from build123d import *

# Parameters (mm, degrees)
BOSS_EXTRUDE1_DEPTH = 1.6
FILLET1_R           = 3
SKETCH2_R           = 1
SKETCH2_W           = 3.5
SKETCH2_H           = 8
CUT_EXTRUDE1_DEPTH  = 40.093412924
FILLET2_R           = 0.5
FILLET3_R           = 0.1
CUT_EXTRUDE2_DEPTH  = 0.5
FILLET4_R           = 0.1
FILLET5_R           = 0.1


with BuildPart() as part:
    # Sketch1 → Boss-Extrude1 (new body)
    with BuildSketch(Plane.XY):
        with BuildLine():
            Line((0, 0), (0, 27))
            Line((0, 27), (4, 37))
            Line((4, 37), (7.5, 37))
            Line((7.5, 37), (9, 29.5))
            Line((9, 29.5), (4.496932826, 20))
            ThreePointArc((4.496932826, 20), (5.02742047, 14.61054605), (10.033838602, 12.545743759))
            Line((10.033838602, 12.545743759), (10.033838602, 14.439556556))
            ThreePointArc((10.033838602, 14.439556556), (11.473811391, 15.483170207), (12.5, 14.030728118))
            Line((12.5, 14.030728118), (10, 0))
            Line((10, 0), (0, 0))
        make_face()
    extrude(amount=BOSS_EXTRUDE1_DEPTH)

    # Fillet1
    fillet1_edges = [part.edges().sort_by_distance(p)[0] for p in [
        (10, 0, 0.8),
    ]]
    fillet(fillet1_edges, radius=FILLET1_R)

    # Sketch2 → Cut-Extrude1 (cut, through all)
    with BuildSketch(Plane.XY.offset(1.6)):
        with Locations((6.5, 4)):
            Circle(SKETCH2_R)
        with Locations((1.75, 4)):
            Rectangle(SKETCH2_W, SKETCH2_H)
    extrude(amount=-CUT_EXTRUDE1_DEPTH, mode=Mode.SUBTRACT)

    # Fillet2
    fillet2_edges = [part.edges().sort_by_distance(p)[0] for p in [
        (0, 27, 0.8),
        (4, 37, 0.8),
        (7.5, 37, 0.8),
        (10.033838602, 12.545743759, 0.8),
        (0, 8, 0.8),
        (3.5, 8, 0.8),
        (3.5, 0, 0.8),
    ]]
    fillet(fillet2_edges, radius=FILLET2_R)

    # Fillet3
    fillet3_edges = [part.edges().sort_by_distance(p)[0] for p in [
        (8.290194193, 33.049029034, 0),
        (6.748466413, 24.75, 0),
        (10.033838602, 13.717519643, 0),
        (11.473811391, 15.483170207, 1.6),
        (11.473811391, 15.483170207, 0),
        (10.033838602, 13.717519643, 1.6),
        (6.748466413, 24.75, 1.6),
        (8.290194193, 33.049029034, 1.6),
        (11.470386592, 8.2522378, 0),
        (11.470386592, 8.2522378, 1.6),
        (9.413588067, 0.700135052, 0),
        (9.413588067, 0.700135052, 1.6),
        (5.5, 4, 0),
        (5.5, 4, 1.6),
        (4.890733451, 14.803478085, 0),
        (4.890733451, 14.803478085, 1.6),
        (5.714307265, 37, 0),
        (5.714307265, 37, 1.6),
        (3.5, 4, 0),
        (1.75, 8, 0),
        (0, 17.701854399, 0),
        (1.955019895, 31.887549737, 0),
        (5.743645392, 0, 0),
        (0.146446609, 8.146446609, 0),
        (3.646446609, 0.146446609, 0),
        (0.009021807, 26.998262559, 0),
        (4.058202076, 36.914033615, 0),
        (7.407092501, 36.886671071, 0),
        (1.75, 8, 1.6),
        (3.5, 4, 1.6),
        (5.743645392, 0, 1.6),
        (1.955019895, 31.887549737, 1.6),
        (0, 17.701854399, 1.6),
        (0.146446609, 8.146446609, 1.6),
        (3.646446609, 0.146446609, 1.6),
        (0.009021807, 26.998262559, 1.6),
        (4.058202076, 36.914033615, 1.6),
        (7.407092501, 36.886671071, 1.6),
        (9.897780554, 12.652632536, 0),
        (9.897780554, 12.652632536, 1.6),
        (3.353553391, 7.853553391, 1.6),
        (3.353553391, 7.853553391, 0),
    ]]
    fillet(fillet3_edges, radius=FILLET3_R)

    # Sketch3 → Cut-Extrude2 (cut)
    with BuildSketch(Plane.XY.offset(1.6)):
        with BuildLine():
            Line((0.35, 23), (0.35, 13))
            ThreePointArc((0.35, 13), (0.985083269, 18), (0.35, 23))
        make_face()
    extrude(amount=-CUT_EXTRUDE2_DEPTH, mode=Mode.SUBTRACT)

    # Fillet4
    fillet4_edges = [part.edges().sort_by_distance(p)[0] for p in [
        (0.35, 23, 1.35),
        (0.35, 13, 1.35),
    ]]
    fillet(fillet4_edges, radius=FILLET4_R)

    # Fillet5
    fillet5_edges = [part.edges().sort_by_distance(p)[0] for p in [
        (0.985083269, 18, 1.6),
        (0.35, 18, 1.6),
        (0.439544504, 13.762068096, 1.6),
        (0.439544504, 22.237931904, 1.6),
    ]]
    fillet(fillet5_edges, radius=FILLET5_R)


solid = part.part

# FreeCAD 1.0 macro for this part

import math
import FreeCAD as App
import Part
import Sketcher
Q = App.Units.Quantity


def edges_at(feature, points):
    """Names of the edges that pass closest to the given points."""
    edges = feature.Shape.Edges
    near = lambda p: min(range(len(edges)), key=lambda i: edges[i].distToShape(Part.Vertex(*p))[0])
    return sorted({f"Edge{near(p) + 1}" for p in points})


def add_polygon(sketch, points):
    """Adds a closed chain of lines whose ends are joined by coincident constraints."""
    first, n = sketch.GeometryCount, len(points)
    for a, b in zip(points, points[1:] + points[:1]):
        sketch.addGeometry(Part.LineSegment(App.Vector(*a, 0), App.Vector(*b, 0)), False)
    for i in range(n):
        sketch.addConstraint(Sketcher.Constraint("Coincident", first + i, 2, first + (i + 1) % n, 1))

doc = App.newDocument("Part")
body = doc.addObject("PartDesign::Body", "Body")

# Sketch on XY plane
sketch1 = body.newObject("Sketcher::SketchObject", "Sketch")
sketch1.AttachmentSupport = (doc.getObject("XY_Plane"), [""])
sketch1.MapMode = "FlatFace"
sketch1.addGeometry(Part.LineSegment(App.Vector(0, 27, 0), App.Vector(0, 0, 0)), False)
sketch1.addGeometry(Part.LineSegment(App.Vector(0, 0, 0), App.Vector(10, 0, 0)), False)
sketch1.addGeometry(Part.LineSegment(App.Vector(10, 0, 0), App.Vector(12.5, 14.030728, 0)), False)
sketch1.addGeometry(Part.ArcOfCircle(Part.Circle(App.Vector(11.269382, 14.25, 0), App.Vector(0, 0, 1), 1.25), math.radians(-10.102955), math.radians(171.277717)), False)
sketch1.addGeometry(Part.LineSegment(App.Vector(10.033839, 14.439557, 0), App.Vector(10.033839, 12.545744, 0)), False)
sketch1.addGeometry(Part.ArcOfCircle(Part.Circle(App.Vector(9.25, 17.747013, 0), App.Vector(0, 0, 1), 5.26), math.radians(154.638717), math.radians(278.570066)), False)
sketch1.addGeometry(Part.LineSegment(App.Vector(4.496933, 20, 0), App.Vector(9, 29.5, 0)), False)
sketch1.addGeometry(Part.LineSegment(App.Vector(9, 29.5, 0), App.Vector(7.5, 37, 0)), False)
sketch1.addGeometry(Part.LineSegment(App.Vector(7.5, 37, 0), App.Vector(4, 37, 0)), False)
sketch1.addGeometry(Part.LineSegment(App.Vector(4, 37, 0), App.Vector(0, 27, 0)), False)
sketch1.addConstraint(Sketcher.Constraint("Coincident", 0, 2, 1, 1))
sketch1.addConstraint(Sketcher.Constraint("Coincident", 1, 2, 2, 1))
sketch1.addConstraint(Sketcher.Constraint("Tangent", 2, 2, 3, 1))
sketch1.addConstraint(Sketcher.Constraint("Coincident", 3, 2, 4, 1))
sketch1.addConstraint(Sketcher.Constraint("Coincident", 4, 2, 5, 2))
sketch1.addConstraint(Sketcher.Constraint("Tangent", 5, 1, 6, 1))
sketch1.addConstraint(Sketcher.Constraint("Coincident", 6, 2, 7, 1))
sketch1.addConstraint(Sketcher.Constraint("Coincident", 7, 2, 8, 1))
sketch1.addConstraint(Sketcher.Constraint("Coincident", 8, 2, 9, 1))
sketch1.addConstraint(Sketcher.Constraint("Coincident", 9, 2, 0, 1))
sketch1.addConstraint(Sketcher.Constraint("Vertical", 0))
sketch1.addConstraint(Sketcher.Constraint("Horizontal", 1))
sketch1.addConstraint(Sketcher.Constraint("Vertical", 4))
sketch1.addConstraint(Sketcher.Constraint("Horizontal", 8))
sketch1.addConstraint(Sketcher.Constraint("Coincident", 0, 2, -1, 1))
sketch1.addConstraint(Sketcher.Constraint("DistanceX", 1, 1, 1, 2, Q("10 mm")))
sketch1.addConstraint(Sketcher.Constraint("DistanceY", 0, 2, 0, 1, Q("27 mm")))
sketch1.addConstraint(Sketcher.Constraint("Radius", 3, Q("1.25 mm")))
sketch1.addConstraint(Sketcher.Constraint("Radius", 5, Q("5.26 mm")))
sketch1.addConstraint(Sketcher.Constraint("DistanceX", 8, 2, 8, 1, Q("3.5 mm")))
sketch1.addConstraint(Sketcher.Constraint("DistanceY", -1, 1, 5, 1, Q("20 mm")))
sketch1.addConstraint(Sketcher.Constraint("DistanceX", -1, 1, 6, 2, Q("9 mm")))
sketch1.addConstraint(Sketcher.Constraint("DistanceY", -1, 1, 7, 2, Q("37 mm")))
sketch1.addConstraint(Sketcher.Constraint("DistanceX", -1, 1, 8, 2, Q("4 mm")))
sketch1.addConstraint(Sketcher.Constraint("DistanceX", -1, 1, 2, 2, Q("12.5 mm")))
sketch1.addConstraint(Sketcher.Constraint("DistanceY", -1, 1, 6, 2, Q("29.5 mm")))
sketch1.addConstraint(Sketcher.Constraint("DistanceY", -1, 1, 3, 3, Q("14.25 mm")))
sketch1.addConstraint(Sketcher.Constraint("DistanceX", -1, 1, 5, 3, Q("9.25 mm")))
sketch1.addConstraint(Sketcher.Constraint("DistanceY", 4, 2, 4, 1, Q("1.893813 mm")))
pad1 = body.newObject("PartDesign::Pad", "Pad")
pad1.Profile = sketch1
pad1.Length = 1.6
doc.recompute()

fillet = body.newObject("PartDesign::Fillet", "Fillet")
fillet.Base = (pad1, edges_at(pad1, [(10, 0, 0.8)]))
fillet.Radius = 3

# Sketch on XY plane
sketch2 = body.newObject("Sketcher::SketchObject", "Sketch001")
sketch2.AttachmentSupport = (doc.getObject("XY_Plane"), [""])
sketch2.MapMode = "FlatFace"
sketch2.AttachmentOffset = App.Placement(App.Vector(0, 0, 1.6), App.Rotation())
sketch2.addGeometry(Part.Circle(App.Vector(6.5, 4, 0), App.Vector(0, 0, 1), 1), False)  # 0
add_polygon(sketch2, [(0, 8), (0, 0), (3.5, 0), (3.5, 8)])  # lines 1-4
sketch2.addConstraint(Sketcher.Constraint("Vertical", 1))
sketch2.addConstraint(Sketcher.Constraint("Horizontal", 2))
sketch2.addConstraint(Sketcher.Constraint("Vertical", 3))
sketch2.addConstraint(Sketcher.Constraint("Horizontal", 4))
sketch2.addConstraint(Sketcher.Constraint("Coincident", 1, 2, -1, 1))
sketch2.addConstraint(Sketcher.Constraint("Diameter", 0, Q("2 mm")))
sketch2.addConstraint(Sketcher.Constraint("DistanceY", 1, 2, 1, 1, Q("8 mm")))
sketch2.addConstraint(Sketcher.Constraint("DistanceX", 2, 1, 2, 2, Q("3.5 mm")))
sketch2.addConstraint(Sketcher.Constraint("DistanceY", -1, 1, 0, 3, Q("4 mm")))
sketch2.addConstraint(Sketcher.Constraint("DistanceX", 2, 2, 0, 3, Q("3 mm")))
pocket1 = body.newObject("PartDesign::Pocket", "Pocket")
pocket1.Profile = sketch2
pocket1.Type = "ThroughAll"
doc.recompute()

fillet2 = body.newObject("PartDesign::Fillet", "Fillet001")
fillet2.Base = (pocket1, edges_at(pocket1, [
    (0, 27, 0.8),
    (4, 37, 0.8),
    (7.5, 37, 0.8),
    (10.034, 12.546, 0.8),
    (0, 8, 0.8),
    (3.5, 8, 0.8),
    (3.5, 0, 0.8),
]))
fillet2.Radius = 0.5
doc.recompute()

fillet3 = body.newObject("PartDesign::Fillet", "Fillet002")
fillet3.Base = (fillet2, edges_at(fillet2, [
    (8.29, 33.049, 0),
    (6.748, 24.75, 0),
    (10.034, 13.718, 0),
    (11.474, 15.483, 1.6),
    (11.474, 15.483, 0),
    (10.034, 13.718, 1.6),
    (6.748, 24.75, 1.6),
    (8.29, 33.049, 1.6),
    (11.47, 8.252, 0),
    (11.47, 8.252, 1.6),
    (9.414, 0.7, 0),
    (9.414, 0.7, 1.6),
    (5.5, 4, 0),
    (5.5, 4, 1.6),
    (4.891, 14.803, 0),
    (4.891, 14.803, 1.6),
    (5.714, 37, 0),
    (5.714, 37, 1.6),
    (3.5, 4, 0),
    (1.75, 8, 0),
    (0, 17.702, 0),
    (1.955, 31.888, 0),
    (5.744, 0, 0),
    (0.146, 8.146, 0),
    (3.646, 0.146, 0),
    (0.009, 26.998, 0),
    (4.058, 36.914, 0),
    (7.407, 36.887, 0),
    (1.75, 8, 1.6),
    (3.5, 4, 1.6),
    (5.744, 0, 1.6),
    (1.955, 31.888, 1.6),
    (0, 17.702, 1.6),
    (0.146, 8.146, 1.6),
    (3.646, 0.146, 1.6),
    (0.009, 26.998, 1.6),
    (4.058, 36.914, 1.6),
    (7.407, 36.887, 1.6),
    (9.898, 12.653, 0),
    (9.898, 12.653, 1.6),
    (3.354, 7.854, 1.6),
    (3.354, 7.854, 0),
]))
fillet3.Radius = 0.1

# Sketch on XY plane
sketch3 = body.newObject("Sketcher::SketchObject", "Sketch002")
sketch3.AttachmentSupport = (doc.getObject("XY_Plane"), [""])
sketch3.MapMode = "FlatFace"
sketch3.AttachmentOffset = App.Placement(App.Vector(0, 0, 1.6), App.Rotation())
sketch3.addGeometry(Part.LineSegment(App.Vector(0.35, 23, 0), App.Vector(0.35, 13, 0)), False)
sketch3.addGeometry(Part.ArcOfCircle(Part.Circle(App.Vector(-19.014917, 18, 0), App.Vector(0, 0, 1), 20), math.radians(-14.477512), math.radians(14.477512)), False)
sketch3.addConstraint(Sketcher.Constraint("Coincident", 0, 1, 1, 2))
sketch3.addConstraint(Sketcher.Constraint("Coincident", 1, 1, 0, 2))
sketch3.addConstraint(Sketcher.Constraint("Vertical", 0))
sketch3.addConstraint(Sketcher.Constraint("Radius", 1, Q("20 mm")))
sketch3.addConstraint(Sketcher.Constraint("DistanceY", 0, 2, 0, 1, Q("10 mm")))
sketch3.addConstraint(Sketcher.Constraint("DistanceY", -1, 1, 1, 3, Q("18 mm")))
sketch3.addConstraint(Sketcher.Constraint("DistanceX", -1, 1, 0, 1, Q("0.35 mm")))
pocket2 = body.newObject("PartDesign::Pocket", "Pocket001")
pocket2.Profile = sketch3
pocket2.Length = 0.5
doc.recompute()

fillet4 = body.newObject("PartDesign::Fillet", "Fillet003")
fillet4.Base = (pocket2, edges_at(pocket2, [(0.35, 23, 1.35), (0.35, 13, 1.35)]))
fillet4.Radius = 0.1
doc.recompute()

fillet5 = body.newObject("PartDesign::Fillet", "Fillet004")
fillet5.Base = (fillet4, edges_at(fillet4, [
    (0.985, 18, 1.6),
    (0.35, 18, 1.6),
    (0.44, 13.762, 1.6),
    (0.44, 22.238, 1.6),
]))
fillet5.Radius = 0.1

doc.recompute()
